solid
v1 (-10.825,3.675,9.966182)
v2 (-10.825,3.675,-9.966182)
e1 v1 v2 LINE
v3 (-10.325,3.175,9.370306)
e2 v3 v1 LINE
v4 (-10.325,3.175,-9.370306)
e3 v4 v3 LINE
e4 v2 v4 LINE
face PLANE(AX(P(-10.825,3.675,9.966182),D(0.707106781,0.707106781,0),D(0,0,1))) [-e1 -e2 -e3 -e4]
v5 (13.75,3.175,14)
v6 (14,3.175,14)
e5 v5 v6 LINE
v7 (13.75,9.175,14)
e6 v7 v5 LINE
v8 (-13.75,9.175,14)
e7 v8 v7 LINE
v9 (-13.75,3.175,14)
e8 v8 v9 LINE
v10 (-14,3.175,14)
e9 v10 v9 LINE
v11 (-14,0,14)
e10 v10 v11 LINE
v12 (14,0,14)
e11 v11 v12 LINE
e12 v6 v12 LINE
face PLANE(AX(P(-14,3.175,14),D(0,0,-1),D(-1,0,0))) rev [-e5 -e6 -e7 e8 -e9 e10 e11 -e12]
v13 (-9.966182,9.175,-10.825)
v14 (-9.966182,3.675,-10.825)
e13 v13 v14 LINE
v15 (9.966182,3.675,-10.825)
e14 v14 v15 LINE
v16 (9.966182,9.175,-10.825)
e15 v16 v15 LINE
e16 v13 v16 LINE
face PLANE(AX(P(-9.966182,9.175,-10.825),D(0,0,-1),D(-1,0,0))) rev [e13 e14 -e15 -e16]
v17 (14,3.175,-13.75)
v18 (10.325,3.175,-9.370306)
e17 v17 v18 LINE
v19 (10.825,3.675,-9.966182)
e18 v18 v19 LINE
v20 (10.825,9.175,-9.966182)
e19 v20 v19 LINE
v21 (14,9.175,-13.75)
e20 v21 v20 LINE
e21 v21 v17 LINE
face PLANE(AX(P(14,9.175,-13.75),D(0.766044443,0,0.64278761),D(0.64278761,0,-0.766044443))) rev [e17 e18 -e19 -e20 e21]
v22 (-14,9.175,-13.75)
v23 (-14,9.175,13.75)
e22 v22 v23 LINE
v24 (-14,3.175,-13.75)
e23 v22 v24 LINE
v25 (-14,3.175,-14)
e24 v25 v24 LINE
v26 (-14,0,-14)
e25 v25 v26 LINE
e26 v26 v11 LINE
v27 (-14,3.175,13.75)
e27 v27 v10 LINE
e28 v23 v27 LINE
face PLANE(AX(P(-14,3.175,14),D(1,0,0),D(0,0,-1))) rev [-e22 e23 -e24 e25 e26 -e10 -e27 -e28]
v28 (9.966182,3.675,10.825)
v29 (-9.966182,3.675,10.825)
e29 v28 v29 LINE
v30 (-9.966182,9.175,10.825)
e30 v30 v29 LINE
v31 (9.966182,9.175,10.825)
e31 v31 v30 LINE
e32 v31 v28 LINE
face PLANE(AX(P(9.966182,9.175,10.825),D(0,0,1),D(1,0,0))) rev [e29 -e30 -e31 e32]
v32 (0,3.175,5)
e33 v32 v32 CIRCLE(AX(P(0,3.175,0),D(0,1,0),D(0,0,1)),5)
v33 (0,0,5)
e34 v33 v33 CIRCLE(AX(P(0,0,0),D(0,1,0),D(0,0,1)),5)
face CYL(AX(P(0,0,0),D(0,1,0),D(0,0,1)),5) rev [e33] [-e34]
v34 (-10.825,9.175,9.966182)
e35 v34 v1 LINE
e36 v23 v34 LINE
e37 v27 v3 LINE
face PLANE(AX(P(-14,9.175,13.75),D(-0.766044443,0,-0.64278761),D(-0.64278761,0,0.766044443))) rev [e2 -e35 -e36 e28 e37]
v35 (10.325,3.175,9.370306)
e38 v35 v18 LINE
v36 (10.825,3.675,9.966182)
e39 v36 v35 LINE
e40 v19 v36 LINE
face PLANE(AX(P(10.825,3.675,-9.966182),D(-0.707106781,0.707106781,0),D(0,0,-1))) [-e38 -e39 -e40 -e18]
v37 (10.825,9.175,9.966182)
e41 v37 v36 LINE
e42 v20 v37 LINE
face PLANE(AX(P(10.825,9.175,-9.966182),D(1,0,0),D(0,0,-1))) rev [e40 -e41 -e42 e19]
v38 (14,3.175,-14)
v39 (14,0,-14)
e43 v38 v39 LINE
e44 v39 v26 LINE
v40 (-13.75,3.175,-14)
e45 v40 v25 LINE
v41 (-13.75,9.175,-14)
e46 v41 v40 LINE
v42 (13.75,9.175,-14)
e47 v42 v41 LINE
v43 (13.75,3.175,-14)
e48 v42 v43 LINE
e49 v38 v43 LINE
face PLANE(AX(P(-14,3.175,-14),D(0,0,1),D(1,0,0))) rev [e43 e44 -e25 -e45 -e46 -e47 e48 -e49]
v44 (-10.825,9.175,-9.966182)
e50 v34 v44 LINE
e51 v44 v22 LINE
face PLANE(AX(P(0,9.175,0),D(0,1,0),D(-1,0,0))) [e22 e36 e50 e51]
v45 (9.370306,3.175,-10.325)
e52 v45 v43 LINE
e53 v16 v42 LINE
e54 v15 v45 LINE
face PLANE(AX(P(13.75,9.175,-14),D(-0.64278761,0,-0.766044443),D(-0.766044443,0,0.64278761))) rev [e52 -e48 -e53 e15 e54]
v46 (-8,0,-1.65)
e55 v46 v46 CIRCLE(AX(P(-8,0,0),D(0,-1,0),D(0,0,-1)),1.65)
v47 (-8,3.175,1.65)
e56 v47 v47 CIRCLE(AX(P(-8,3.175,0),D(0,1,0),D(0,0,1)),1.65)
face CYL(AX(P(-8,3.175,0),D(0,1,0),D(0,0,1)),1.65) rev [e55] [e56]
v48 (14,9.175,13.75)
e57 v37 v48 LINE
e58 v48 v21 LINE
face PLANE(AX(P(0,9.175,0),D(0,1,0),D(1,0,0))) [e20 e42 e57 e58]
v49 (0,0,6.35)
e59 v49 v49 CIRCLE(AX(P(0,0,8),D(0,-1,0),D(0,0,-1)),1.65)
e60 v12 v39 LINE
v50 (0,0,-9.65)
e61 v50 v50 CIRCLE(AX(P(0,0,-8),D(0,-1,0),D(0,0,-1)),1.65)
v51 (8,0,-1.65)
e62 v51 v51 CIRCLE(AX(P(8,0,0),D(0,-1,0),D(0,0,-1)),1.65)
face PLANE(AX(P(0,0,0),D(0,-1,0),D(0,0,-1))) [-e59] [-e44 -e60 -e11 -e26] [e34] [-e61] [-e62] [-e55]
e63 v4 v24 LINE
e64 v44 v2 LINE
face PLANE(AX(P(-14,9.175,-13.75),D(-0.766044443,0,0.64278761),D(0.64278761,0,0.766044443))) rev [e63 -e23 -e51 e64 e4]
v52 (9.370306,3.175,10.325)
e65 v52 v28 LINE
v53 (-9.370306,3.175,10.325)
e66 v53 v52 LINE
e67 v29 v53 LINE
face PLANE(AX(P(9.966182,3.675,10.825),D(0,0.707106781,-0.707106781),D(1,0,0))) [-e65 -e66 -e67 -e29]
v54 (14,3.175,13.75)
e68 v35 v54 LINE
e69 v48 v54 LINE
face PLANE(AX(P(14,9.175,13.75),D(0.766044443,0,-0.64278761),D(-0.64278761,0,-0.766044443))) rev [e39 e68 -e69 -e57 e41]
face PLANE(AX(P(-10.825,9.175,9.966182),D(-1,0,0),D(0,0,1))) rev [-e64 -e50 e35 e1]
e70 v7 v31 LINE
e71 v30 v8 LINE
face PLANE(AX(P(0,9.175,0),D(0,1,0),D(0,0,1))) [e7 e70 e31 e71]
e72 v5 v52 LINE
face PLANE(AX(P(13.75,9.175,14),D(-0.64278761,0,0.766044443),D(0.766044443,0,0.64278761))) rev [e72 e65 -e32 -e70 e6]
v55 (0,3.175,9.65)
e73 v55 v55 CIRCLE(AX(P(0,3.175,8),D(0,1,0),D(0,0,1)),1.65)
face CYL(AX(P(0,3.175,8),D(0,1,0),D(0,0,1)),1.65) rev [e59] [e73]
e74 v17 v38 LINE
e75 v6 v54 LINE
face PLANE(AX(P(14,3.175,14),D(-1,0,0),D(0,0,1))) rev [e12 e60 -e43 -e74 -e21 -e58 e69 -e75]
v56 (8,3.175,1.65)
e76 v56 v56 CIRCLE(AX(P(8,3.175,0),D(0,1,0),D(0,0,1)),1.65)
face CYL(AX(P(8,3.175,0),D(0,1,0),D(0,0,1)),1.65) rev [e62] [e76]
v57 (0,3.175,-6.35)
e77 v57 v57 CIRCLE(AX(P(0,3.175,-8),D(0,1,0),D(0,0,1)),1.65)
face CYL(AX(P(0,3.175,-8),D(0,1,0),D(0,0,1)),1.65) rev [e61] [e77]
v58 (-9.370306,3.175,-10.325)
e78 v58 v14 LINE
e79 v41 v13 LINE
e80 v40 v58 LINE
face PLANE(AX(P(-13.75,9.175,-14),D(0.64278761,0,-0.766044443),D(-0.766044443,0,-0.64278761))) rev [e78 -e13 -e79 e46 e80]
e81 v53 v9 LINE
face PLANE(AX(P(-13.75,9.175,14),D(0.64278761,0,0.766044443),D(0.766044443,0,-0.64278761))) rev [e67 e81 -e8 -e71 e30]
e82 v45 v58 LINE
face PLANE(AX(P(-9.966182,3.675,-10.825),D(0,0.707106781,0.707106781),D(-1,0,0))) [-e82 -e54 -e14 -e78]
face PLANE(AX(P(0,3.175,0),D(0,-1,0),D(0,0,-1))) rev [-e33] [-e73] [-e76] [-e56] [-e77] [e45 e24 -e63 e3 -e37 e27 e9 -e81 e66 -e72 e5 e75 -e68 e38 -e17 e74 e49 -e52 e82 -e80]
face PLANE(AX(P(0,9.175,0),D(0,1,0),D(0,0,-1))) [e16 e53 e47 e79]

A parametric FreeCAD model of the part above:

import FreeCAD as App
import Part
import Sketcher
Q = App.Units.Quantity


def edges_at(feature, points):
    """Names of the edges that pass closest to the given points."""
    edges = feature.Shape.Edges
    near = lambda p: min(range(len(edges)), key=lambda i: edges[i].distToShape(Part.Vertex(*p))[0])
    return sorted({f"Edge{near(p) + 1}" for p in points})


def add_polygon(sketch, points):
    """Adds a closed chain of lines whose ends are joined by coincident constraints."""
    first, n = sketch.GeometryCount, len(points)
    for a, b in zip(points, points[1:] + points[:1]):
        sketch.addGeometry(Part.LineSegment(App.Vector(*a, 0), App.Vector(*b, 0)), False)
    for i in range(n):
        sketch.addConstraint(Sketcher.Constraint("Coincident", first + i, 2, first + (i + 1) % n, 1))

doc = App.newDocument("Part")
body = doc.addObject("PartDesign::Body", "Body")

# Sketch on XZ plane
sketch1 = doc.addObject("Sketcher::SketchObject", "Sketch")
body.addObject(sketch1)
sketch1.AttachmentSupport = (doc.XZ_Plane, [""])
sketch1.MapMode = "FlatFace"
add_polygon(sketch1, [(-14, -14), (-14, 14), (14, 14), (14, -14)])  # lines 0-3
sketch1.addConstraint([
    Sketcher.Constraint("Vertical", 0),
    Sketcher.Constraint("Horizontal", 1),
    Sketcher.Constraint("Vertical", 2),
    Sketcher.Constraint("Horizontal", 3),
    Sketcher.Constraint("Symmetric", 0, 2, 2, 2, -1, 1),
    Sketcher.Constraint("Equal", 3, 0),
    Sketcher.Constraint("DistanceX", 1, 1, 1, 2, Q("28 mm")),
])
pad1 = doc.addObject("PartDesign::Pad", "Pad")
body.addObject(pad1)
pad1.Profile = sketch1
pad1.Length = 3.175
pad1.Reversed = True

# Sketch on XZ plane
sketch2 = doc.addObject("Sketcher::SketchObject", "Sketch001")
body.addObject(sketch2)
sketch2.AttachmentSupport = (doc.XZ_Plane, [""])
sketch2.MapMode = "FlatFace"
sketch2.AttachmentOffset = App.Placement(App.Vector(0, 0, -3.175), App.Rotation())
sketch2.addGeometry(Part.Circle(App.Vector(0, 0, 0), App.Vector(0, 0, 1), 5), False)
sketch2.addConstraint([
    Sketcher.Constraint("Coincident", 0, 3, -1, 1),
    Sketcher.Constraint("Diameter", 0, Q("10 mm")),
])
pocket1 = doc.addObject("PartDesign::Pocket", "Pocket")
body.addObject(pocket1)
pocket1.Profile = sketch2
pocket1.Type = "ThroughAll"
pocket1.Reversed = True

# Sketch on XZ plane
sketch3 = doc.addObject("Sketcher::SketchObject", "Sketch002")
body.addObject(sketch3)
sketch3.AttachmentSupport = (doc.XZ_Plane, [""])
sketch3.MapMode = "FlatFace"
sketch3.AttachmentOffset = App.Placement(App.Vector(0, 0, -3.175), App.Rotation())
sketch3.addGeometry([
    Part.Circle(App.Vector(8, 0, 0), App.Vector(0, 0, 1), 1.6),
    Part.Circle(App.Vector(0, 8, 0), App.Vector(0, 0, 1), 1.6),
    Part.Circle(App.Vector(-8, 0, 0), App.Vector(0, 0, 1), 1.6),
    Part.Circle(App.Vector(0, -8, 0), App.Vector(0, 0, 1), 1.6),
], False)
sketch3.addConstraint([
    Sketcher.Constraint("Equal", 0, 1),
    Sketcher.Constraint("Equal", 1, 2),
    Sketcher.Constraint("Equal", 2, 3),
    Sketcher.Constraint("Symmetric", 0, 3, 2, 3, -1, 1),
    Sketcher.Constraint("Symmetric", 1, 3, 3, 3, -1, 1),
    Sketcher.Constraint("PointOnObject", 0, 3, -1),
    Sketcher.Constraint("PointOnObject", 1, 3, -2),
    Sketcher.Constraint("Diameter", 0, Q("3.3 mm")),
    Sketcher.Constraint("DistanceX", -1, 1, 0, 3, Q("8 mm")),
    Sketcher.Constraint("DistanceY", -1, 1, 1, 3, Q("8 mm")),
])
doc.recompute()
hole = doc.addObject("PartDesign::Hole", "Hole")
body.addObject(hole)
hole.Profile = sketch3
hole.ThreadType = "None"
hole.Diameter = 3.3
hole.DepthType = "Dimension"
hole.Depth = 15
hole.DrillPoint = "Angled"
hole.DrillPointAngle = 118
hole.Reversed = True

# Sketch on XZ plane
sketch4 = doc.addObject("Sketcher::SketchObject", "Sketch003")
body.addObject(sketch4)
sketch4.AttachmentSupport = (doc.XZ_Plane, [""])
sketch4.MapMode = "FlatFace"
sketch4.AttachmentOffset = App.Placement(App.Vector(0, 0, -3.175), App.Rotation())
add_polygon(sketch4, [(-13.8, 14), (13.8, 14), (10, 10.8), (-10, 10.8)])  # lines 0-3
sketch4.addConstraint([
    Sketcher.Constraint("Horizontal", 0),
    Sketcher.Constraint("Horizontal", 2),
    Sketcher.Constraint("Equal", 1, 3),
    Sketcher.Constraint("Angle", 1, Q("-140 deg")),
    Sketcher.Constraint("DistanceX", 0, 1, 0, 2, Q("27.5 mm")),
    Sketcher.Constraint("DistanceY", -1, 1, 0, 2, Q("14 mm")),
    Sketcher.Constraint("DistanceX", -1, 1, 0, 2, Q("13.75 mm")),
    Sketcher.Constraint("DistanceY", -1, 1, 1, 2, Q("10.825 mm")),
])
pad2 = doc.addObject("PartDesign::Pad", "Pad001")
body.addObject(pad2)
pad2.Profile = sketch4
pad2.Length = 6
pad2.Reversed = True
doc.recompute()

polarpattern = doc.addObject("PartDesign::PolarPattern", "PolarPattern")
body.addObject(polarpattern)
polarpattern.Originals = [pad2]
polarpattern.Axis = (doc.Y_Axis, [""])
polarpattern.Angle = 360
polarpattern.Occurrences = 4
body.Tip = polarpattern
doc.recompute()

chamfer = doc.addObject("PartDesign::Chamfer", "Chamfer")
body.addObject(chamfer)
chamfer.Base = (polarpattern, edges_at(polarpattern, [
    (0, 3.175, 10.825),
    (10.825, 3.175, 0),
    (0, 3.175, -10.825),
    (-10.825, 3.175, 0),
]))
chamfer.Size = 0.5

doc.recompute()
